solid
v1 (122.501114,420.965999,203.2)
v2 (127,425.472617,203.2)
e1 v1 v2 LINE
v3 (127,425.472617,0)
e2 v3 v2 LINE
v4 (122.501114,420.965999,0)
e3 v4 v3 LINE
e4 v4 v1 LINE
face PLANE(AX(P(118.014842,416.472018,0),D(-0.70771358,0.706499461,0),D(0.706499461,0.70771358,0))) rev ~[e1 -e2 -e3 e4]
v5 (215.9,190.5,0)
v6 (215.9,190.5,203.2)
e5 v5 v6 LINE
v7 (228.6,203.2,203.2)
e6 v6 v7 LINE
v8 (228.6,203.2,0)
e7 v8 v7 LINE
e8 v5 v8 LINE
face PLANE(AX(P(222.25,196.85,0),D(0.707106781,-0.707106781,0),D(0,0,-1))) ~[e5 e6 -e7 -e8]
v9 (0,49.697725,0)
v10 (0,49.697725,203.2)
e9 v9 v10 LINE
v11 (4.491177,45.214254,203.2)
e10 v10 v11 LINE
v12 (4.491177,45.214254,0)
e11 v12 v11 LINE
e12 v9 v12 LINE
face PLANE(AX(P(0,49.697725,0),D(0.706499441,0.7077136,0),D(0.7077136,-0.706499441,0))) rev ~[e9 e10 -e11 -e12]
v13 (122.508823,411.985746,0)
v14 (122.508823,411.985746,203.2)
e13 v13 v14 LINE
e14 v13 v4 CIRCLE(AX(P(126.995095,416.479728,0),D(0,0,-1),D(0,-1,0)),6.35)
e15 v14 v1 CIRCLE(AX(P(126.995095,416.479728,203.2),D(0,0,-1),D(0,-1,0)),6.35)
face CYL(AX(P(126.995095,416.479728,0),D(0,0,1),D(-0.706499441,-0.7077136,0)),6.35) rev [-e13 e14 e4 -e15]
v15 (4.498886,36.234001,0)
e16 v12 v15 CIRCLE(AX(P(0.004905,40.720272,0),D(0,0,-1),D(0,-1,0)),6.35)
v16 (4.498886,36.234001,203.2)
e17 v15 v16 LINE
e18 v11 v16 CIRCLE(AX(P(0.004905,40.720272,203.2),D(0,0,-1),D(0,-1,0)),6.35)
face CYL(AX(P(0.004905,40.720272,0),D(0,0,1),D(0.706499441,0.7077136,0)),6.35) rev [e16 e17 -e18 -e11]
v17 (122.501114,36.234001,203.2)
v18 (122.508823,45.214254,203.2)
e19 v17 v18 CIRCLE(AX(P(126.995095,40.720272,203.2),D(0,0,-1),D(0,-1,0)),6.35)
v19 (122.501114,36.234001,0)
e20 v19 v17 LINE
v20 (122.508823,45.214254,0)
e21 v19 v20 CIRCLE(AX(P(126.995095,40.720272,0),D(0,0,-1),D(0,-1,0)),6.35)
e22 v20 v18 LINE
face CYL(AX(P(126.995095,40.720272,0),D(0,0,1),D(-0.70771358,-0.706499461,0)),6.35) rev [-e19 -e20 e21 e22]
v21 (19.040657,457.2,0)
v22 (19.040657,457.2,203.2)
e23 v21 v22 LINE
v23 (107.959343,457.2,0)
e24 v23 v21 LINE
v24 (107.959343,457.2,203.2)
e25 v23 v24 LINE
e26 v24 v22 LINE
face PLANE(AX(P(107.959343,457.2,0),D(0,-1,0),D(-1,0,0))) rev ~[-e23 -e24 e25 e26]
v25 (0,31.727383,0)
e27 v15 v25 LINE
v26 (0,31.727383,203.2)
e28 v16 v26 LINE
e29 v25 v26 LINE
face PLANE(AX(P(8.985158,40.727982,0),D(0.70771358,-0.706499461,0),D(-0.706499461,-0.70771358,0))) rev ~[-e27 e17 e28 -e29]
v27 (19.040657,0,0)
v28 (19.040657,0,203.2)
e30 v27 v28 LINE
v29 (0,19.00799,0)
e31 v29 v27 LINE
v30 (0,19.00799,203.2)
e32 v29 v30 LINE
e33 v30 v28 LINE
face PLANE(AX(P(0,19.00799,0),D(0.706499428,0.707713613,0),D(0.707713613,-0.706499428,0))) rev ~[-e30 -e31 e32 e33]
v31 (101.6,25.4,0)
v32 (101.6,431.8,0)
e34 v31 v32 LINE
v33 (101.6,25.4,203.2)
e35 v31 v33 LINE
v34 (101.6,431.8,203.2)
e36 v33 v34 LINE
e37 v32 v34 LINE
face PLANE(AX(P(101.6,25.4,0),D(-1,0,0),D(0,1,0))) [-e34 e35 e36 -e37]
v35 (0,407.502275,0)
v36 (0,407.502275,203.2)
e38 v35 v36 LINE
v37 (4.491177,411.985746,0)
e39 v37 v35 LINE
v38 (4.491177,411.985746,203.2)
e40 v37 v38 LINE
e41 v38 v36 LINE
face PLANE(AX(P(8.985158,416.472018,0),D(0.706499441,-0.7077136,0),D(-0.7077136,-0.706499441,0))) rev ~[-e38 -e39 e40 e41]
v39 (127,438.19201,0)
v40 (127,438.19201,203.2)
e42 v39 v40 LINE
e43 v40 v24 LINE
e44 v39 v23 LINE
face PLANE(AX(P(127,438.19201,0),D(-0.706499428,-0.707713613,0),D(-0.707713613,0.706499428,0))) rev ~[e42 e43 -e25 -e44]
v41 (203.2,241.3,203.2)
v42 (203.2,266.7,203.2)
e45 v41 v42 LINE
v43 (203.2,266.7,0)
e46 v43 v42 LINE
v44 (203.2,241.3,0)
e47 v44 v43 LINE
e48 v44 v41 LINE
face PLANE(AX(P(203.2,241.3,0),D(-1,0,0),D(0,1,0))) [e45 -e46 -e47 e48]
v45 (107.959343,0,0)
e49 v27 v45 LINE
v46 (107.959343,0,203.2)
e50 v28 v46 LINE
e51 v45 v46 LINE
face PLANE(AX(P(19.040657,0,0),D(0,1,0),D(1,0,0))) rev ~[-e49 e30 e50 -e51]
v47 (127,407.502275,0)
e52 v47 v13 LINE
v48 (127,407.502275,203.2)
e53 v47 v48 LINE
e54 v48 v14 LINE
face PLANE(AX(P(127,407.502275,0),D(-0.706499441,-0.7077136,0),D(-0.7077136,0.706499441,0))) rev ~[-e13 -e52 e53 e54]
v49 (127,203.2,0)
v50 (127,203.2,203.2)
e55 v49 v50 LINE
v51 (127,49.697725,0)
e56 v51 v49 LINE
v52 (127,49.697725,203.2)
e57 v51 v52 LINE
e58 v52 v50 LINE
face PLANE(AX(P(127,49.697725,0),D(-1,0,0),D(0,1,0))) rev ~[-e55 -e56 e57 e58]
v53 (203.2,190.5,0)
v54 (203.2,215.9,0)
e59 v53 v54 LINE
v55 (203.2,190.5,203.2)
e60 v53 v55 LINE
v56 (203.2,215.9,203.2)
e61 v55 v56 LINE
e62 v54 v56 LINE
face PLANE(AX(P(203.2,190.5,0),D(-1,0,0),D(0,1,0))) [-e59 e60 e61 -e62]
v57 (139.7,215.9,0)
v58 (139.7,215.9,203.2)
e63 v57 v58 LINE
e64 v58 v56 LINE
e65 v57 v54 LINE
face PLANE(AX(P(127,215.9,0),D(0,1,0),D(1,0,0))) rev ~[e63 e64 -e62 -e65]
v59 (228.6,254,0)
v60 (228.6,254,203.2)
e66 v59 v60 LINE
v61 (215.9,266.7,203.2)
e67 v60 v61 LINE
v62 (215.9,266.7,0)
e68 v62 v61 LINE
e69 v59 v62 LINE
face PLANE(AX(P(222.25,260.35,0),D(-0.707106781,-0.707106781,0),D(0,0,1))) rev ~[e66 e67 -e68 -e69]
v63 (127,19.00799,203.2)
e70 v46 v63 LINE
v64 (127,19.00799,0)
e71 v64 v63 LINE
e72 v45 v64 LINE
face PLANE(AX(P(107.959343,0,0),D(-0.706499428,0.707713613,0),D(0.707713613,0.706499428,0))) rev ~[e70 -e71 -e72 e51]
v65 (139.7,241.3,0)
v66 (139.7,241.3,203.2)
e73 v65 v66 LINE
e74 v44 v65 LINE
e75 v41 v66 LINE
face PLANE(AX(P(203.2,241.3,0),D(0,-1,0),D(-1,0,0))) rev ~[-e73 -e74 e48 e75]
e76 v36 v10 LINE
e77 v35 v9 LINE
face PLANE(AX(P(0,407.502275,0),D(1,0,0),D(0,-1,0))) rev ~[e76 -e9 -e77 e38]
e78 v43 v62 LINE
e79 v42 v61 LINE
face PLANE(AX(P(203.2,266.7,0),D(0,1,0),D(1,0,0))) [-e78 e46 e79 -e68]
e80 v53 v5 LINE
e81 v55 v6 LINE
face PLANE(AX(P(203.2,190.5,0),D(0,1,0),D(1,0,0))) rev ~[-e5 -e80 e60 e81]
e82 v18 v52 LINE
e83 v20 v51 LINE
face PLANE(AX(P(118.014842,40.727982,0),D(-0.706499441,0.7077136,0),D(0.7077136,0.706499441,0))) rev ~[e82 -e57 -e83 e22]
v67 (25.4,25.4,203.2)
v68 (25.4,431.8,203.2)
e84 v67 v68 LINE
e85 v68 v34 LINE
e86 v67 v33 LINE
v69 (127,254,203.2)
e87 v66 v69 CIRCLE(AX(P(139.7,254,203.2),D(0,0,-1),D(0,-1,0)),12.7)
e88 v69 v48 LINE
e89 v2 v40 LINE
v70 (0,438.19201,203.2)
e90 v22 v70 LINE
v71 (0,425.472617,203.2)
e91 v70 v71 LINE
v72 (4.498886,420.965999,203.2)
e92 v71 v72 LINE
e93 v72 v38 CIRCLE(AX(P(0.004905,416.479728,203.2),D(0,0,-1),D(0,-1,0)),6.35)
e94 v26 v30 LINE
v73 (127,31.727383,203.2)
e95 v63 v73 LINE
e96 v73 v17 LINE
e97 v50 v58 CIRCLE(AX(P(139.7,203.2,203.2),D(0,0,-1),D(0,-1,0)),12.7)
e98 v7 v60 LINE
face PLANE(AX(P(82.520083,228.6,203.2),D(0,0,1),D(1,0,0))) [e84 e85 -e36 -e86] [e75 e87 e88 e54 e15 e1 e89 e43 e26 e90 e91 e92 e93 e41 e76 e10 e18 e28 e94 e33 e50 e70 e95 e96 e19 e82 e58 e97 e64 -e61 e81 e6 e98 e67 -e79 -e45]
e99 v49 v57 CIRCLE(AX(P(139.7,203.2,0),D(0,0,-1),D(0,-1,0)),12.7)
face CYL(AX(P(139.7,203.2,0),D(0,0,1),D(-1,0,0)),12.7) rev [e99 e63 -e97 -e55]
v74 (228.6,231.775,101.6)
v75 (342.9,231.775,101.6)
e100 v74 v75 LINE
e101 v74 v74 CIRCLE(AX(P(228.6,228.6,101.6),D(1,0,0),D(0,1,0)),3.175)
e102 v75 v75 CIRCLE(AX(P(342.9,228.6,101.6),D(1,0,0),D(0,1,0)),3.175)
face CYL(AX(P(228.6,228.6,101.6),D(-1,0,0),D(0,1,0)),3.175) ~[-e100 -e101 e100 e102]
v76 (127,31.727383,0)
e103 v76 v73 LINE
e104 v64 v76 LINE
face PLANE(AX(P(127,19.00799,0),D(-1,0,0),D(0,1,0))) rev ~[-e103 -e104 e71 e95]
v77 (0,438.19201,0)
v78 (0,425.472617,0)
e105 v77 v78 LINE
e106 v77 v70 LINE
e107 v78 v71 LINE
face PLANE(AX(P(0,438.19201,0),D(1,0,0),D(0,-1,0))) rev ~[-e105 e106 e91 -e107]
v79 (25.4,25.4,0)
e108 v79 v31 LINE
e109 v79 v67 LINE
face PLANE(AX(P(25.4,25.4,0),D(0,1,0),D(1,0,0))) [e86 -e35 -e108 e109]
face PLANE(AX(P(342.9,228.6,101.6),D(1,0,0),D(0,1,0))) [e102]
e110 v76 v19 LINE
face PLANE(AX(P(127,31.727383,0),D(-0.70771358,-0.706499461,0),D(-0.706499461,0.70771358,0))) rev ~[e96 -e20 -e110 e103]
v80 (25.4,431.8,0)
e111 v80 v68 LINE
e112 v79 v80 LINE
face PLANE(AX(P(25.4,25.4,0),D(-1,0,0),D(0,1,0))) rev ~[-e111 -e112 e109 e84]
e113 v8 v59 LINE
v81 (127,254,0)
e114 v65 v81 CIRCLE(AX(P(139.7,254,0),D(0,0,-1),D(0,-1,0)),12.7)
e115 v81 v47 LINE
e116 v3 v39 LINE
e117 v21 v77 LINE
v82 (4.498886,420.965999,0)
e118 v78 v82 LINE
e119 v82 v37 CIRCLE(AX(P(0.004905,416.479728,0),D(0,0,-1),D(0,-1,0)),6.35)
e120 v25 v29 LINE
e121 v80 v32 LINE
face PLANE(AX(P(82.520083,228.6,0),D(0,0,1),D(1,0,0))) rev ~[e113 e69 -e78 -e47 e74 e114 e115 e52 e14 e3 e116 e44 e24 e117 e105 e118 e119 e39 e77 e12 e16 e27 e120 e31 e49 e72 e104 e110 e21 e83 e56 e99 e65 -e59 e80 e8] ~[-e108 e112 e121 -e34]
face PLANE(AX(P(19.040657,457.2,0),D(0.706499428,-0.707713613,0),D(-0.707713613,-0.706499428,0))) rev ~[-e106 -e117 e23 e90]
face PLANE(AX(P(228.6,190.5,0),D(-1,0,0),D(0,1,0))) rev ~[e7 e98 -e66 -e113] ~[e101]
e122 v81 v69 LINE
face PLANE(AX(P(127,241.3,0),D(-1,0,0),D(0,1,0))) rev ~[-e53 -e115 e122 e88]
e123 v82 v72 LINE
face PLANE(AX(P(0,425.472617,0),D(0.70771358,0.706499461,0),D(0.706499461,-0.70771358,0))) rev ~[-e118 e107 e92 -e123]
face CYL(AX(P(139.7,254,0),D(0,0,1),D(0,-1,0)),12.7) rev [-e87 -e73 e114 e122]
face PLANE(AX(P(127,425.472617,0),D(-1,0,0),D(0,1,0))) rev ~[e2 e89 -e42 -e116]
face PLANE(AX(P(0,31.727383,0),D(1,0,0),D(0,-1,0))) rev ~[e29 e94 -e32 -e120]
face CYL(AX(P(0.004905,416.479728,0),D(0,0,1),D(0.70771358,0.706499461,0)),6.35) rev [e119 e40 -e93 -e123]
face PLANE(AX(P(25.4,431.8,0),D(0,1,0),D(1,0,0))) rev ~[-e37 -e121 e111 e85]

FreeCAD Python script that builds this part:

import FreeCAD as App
import Part
import Sketcher
Q = App.Units.Quantity


def edges_at(feature, points):
    """Names of the edges that pass closest to the given points."""
    edges = feature.Shape.Edges
    near = lambda p: min(range(len(edges)), key=lambda i: edges[i].distToShape(Part.Vertex(*p))[0])
    return sorted({f"Edge{near(p) + 1}" for p in points})

doc = App.newDocument("Part")
body = doc.addObject("PartDesign::Body", "Body")

# Sketch on XY plane
sketch1 = body.newObject("Sketcher::SketchObject", "Sketch")
sketch1.AttachmentSupport = (doc.getObject("XY_Plane"), [""])
sketch1.MapMode = "FlatFace"
sketch1.addGeometry([
    Part.LineSegment(App.Vector(0, 19.00799, 0), App.Vector(19.040657, 0, 0)),  # 0
    Part.LineSegment(App.Vector(19.040657, 0, 0), App.Vector(107.959343, 0, 0)),  # 1
    Part.LineSegment(App.Vector(107.959343, 0, 0), App.Vector(127, 19.00799, 0)),  # 2
    Part.LineSegment(App.Vector(127, 19.00799, 0), App.Vector(127, 31.727383, 0)),  # 3
    Part.LineSegment(App.Vector(127, 31.727383, 0), App.Vector(118.014842, 40.727982, 0)),  # 4
    Part.LineSegment(App.Vector(118.014842, 40.727982, 0), App.Vector(127, 49.697725, 0)),  # 5
    Part.LineSegment(App.Vector(127, 49.697725, 0), App.Vector(127, 215.9, 0)),  # 6
    Part.LineSegment(App.Vector(127, 215.9, 0), App.Vector(203.2, 215.9, 0)),  # 7
    Part.LineSegment(App.Vector(203.2, 215.9, 0), App.Vector(203.2, 190.5, 0)),  # 8
    Part.LineSegment(App.Vector(203.2, 190.5, 0), App.Vector(228.6, 190.5, 0)),  # 9
    Part.LineSegment(App.Vector(228.6, 190.5, 0), App.Vector(228.6, 266.7, 0)),  # 10
    Part.LineSegment(App.Vector(228.6, 266.7, 0), App.Vector(203.2, 266.7, 0)),  # 11
    Part.LineSegment(App.Vector(203.2, 266.7, 0), App.Vector(203.2, 241.3, 0)),  # 12
    Part.LineSegment(App.Vector(203.2, 241.3, 0), App.Vector(127, 241.3, 0)),  # 13
    Part.LineSegment(App.Vector(127, 241.3, 0), App.Vector(127, 407.502275, 0)),  # 14
    Part.LineSegment(App.Vector(127, 407.502275, 0), App.Vector(118.014842, 416.472018, 0)),  # 15
    Part.LineSegment(App.Vector(118.014842, 416.472018, 0), App.Vector(127, 425.472617, 0)),  # 16
    Part.LineSegment(App.Vector(127, 425.472617, 0), App.Vector(127, 438.19201, 0)),  # 17
    Part.LineSegment(App.Vector(127, 438.19201, 0), App.Vector(107.959343, 457.2, 0)),  # 18
    Part.LineSegment(App.Vector(107.959343, 457.2, 0), App.Vector(19.040657, 457.2, 0)),  # 19
    Part.LineSegment(App.Vector(19.040657, 457.2, 0), App.Vector(0, 438.19201, 0)),  # 20
    Part.LineSegment(App.Vector(0, 438.19201, 0), App.Vector(0, 425.472617, 0)),  # 21
    Part.LineSegment(App.Vector(0, 425.472617, 0), App.Vector(8.985158, 416.472018, 0)),  # 22
    Part.LineSegment(App.Vector(8.985158, 416.472018, 0), App.Vector(0, 407.502275, 0)),  # 23
    Part.LineSegment(App.Vector(0, 407.502275, 0), App.Vector(0, 49.697725, 0)),  # 24
    Part.LineSegment(App.Vector(0, 49.697725, 0), App.Vector(8.985158, 40.727982, 0)),  # 25
    Part.LineSegment(App.Vector(8.985158, 40.727982, 0), App.Vector(0, 31.727383, 0)),  # 26
    Part.LineSegment(App.Vector(0, 31.727383, 0), App.Vector(0, 19.00799, 0)),  # 27
    Part.LineSegment(App.Vector(101.6, 25.4, 0), App.Vector(25.4, 25.4, 0)),  # 28
    Part.LineSegment(App.Vector(25.4, 25.4, 0), App.Vector(25.4, 431.8, 0)),  # 29
    Part.LineSegment(App.Vector(25.4, 431.8, 0), App.Vector(101.6, 431.8, 0)),  # 30
    Part.LineSegment(App.Vector(101.6, 431.8, 0), App.Vector(101.6, 25.4, 0)),  # 31
], False)
sketch1.addConstraint([
    Sketcher.Constraint("Coincident", 0, 2, 1, 1),
    Sketcher.Constraint("Coincident", 1, 2, 2, 1),
    Sketcher.Constraint("Coincident", 2, 2, 3, 1),
    Sketcher.Constraint("Coincident", 3, 2, 4, 1),
    Sketcher.Constraint("Coincident", 4, 2, 5, 1),
    Sketcher.Constraint("Coincident", 5, 2, 6, 1),
    Sketcher.Constraint("Coincident", 6, 2, 7, 1),
    Sketcher.Constraint("Coincident", 7, 2, 8, 1),
    Sketcher.Constraint("Coincident", 8, 2, 9, 1),
    Sketcher.Constraint("Coincident", 9, 2, 10, 1),
    Sketcher.Constraint("Coincident", 10, 2, 11, 1),
    Sketcher.Constraint("Coincident", 11, 2, 12, 1),
    Sketcher.Constraint("Coincident", 12, 2, 13, 1),
    Sketcher.Constraint("Coincident", 13, 2, 14, 1),
    Sketcher.Constraint("Coincident", 14, 2, 15, 1),
    Sketcher.Constraint("Coincident", 15, 2, 16, 1),
    Sketcher.Constraint("Coincident", 16, 2, 17, 1),
    Sketcher.Constraint("Coincident", 17, 2, 18, 1),
    Sketcher.Constraint("Coincident", 18, 2, 19, 1),
    Sketcher.Constraint("Coincident", 19, 2, 20, 1),
    Sketcher.Constraint("Coincident", 20, 2, 21, 1),
    Sketcher.Constraint("Coincident", 21, 2, 22, 1),
    Sketcher.Constraint("Coincident", 22, 2, 23, 1),
    Sketcher.Constraint("Coincident", 23, 2, 24, 1),
    Sketcher.Constraint("Coincident", 24, 2, 25, 1),
    Sketcher.Constraint("Coincident", 25, 2, 26, 1),
    Sketcher.Constraint("Coincident", 26, 2, 27, 1),
    Sketcher.Constraint("Coincident", 27, 2, 0, 1),
    Sketcher.Constraint("Coincident", 28, 2, 29, 1),
    Sketcher.Constraint("Coincident", 29, 2, 30, 1),
    Sketcher.Constraint("Coincident", 30, 2, 31, 1),
    Sketcher.Constraint("Coincident", 31, 2, 28, 1),
    Sketcher.Constraint("Horizontal", 1),
    Sketcher.Constraint("Vertical", 3),
    Sketcher.Constraint("Vertical", 6),
    Sketcher.Constraint("Horizontal", 7),
    Sketcher.Constraint("Vertical", 8),
    Sketcher.Constraint("Horizontal", 9),
    Sketcher.Constraint("Vertical", 10),
    Sketcher.Constraint("Horizontal", 11),
    Sketcher.Constraint("Vertical", 12),
    Sketcher.Constraint("Horizontal", 13),
    Sketcher.Constraint("Vertical", 14),
    Sketcher.Constraint("Vertical", 17),
    Sketcher.Constraint("Horizontal", 19),
    Sketcher.Constraint("Vertical", 21),
    Sketcher.Constraint("Vertical", 24),
    Sketcher.Constraint("Vertical", 27),
    Sketcher.Constraint("Horizontal", 28),
    Sketcher.Constraint("Vertical", 29),
    Sketcher.Constraint("Horizontal", 30),
    Sketcher.Constraint("Vertical", 31),
    Sketcher.Constraint("PointOnObject", 0, 2, -1),
    Sketcher.Constraint("PointOnObject", 20, 2, -2),
    Sketcher.Constraint("PointOnObject", 23, 2, -2),
    Sketcher.Constraint("PointOnObject", 26, 2, -2),
    Sketcher.Constraint("Perpendicular", 2, 4),
    Sketcher.Constraint("Perpendicular", 4, 5),
    Sketcher.Constraint("Parallel", 0, 15),
    Sketcher.Constraint("Perpendicular", 15, 16),
    Sketcher.Constraint("Perpendicular", 16, 18),
    Sketcher.Constraint("Parallel", 5, 20),
    Sketcher.Constraint("Perpendicular", 20, 22),
    Sketcher.Constraint("Perpendicular", 22, 23),
    Sketcher.Constraint("Parallel", 18, 25),
    Sketcher.Constraint("Perpendicular", 25, 26),
    Sketcher.Constraint("Horizontal", 17, 2, 20, 2),
    Sketcher.Constraint("Horizontal", 16, 2, 21, 2),
    Sketcher.Constraint("Horizontal", 15, 2, 22, 2),
    Sketcher.Constraint("Horizontal", 14, 2, 23, 2),
    Sketcher.Constraint("Horizontal", 5, 2, 24, 2),
    Sketcher.Constraint("Horizontal", 4, 2, 25, 2),
    Sketcher.Constraint("Horizontal", 3, 2, 26, 2),
    Sketcher.Constraint("Horizontal", 2, 2, 27, 2),
    Sketcher.Constraint("Vertical", 3, 2, 5, 2),
    Sketcher.Constraint("Vertical", 8, 2, 11, 2),
    Sketcher.Constraint("Vertical", 6, 2, 13, 2),
    Sketcher.Constraint("Vertical", 4, 2, 15, 2),
    Sketcher.Constraint("Vertical", 1, 2, 18, 2),
    Sketcher.Constraint("Equal", 13, 28),
    Sketcher.Constraint("Equal", 11, 8),
    Sketcher.Constraint("Equal", 30, 10),
    Sketcher.Constraint("Equal", 8, 12),
    Sketcher.Constraint("Equal", 6, 14),
    Sketcher.Constraint("Equal", 3, 17),
    Sketcher.Constraint("DistanceX", 7, 1, 7, 2, Q("3 in")),
    Sketcher.Constraint("DistanceX", 9, 1, 9, 2, Q("1 in")),
    Sketcher.Constraint("DistanceY", 29, 1, 29, 2, Q("16 in")),
    Sketcher.Constraint("DistanceX", -1, 1, 2, 2, Q("5 in")),
    Sketcher.Constraint("DistanceY", -1, 1, 18, 2, Q("18 in")),
    Sketcher.Constraint("DistanceX", -1, 1, 28, 2, Q("1 in")),
    Sketcher.Constraint("DistanceY", -1, 1, 28, 2, Q("1 in")),
    Sketcher.Constraint("DistanceY", 24, 2, 24, 1, 357.80455),
    Sketcher.Constraint("DistanceY", 3, 2, 4, 2, 9.000599),
    Sketcher.Constraint("DistanceX", 1, 2, 4, 2, 10.055499),
    Sketcher.Constraint("DistanceX", 1, 1, 1, 2, 88.918686),
])
pad1 = body.newObject("PartDesign::Pad", "Pad")
pad1.Profile = sketch1
pad1.Length = Q("8 in")
doc.recompute()

fillet = body.newObject("PartDesign::Fillet", "Fillet")
fillet.Base = (pad1, edges_at(pad1, [
    (118.015, 416.472, 101.6),
    (8.985, 416.472, 101.6),
    (8.985, 40.728, 101.6),
    (118.015, 40.728, 101.6),
]))
fillet.Radius = Q("0.25 in")
doc.recompute()

fillet2 = body.newObject("PartDesign::Fillet", "Fillet001")
fillet2.Base = (fillet, edges_at(fillet, [(127, 215.9, 101.6), (127, 241.3, 101.6)]))
fillet2.Radius = Q("0.5 in")
doc.recompute()

chamfer = body.newObject("PartDesign::Chamfer", "Chamfer")
chamfer.Base = (fillet2, edges_at(fillet2, [(228.6, 190.5, 101.6), (228.6, 266.7, 101.6)]))
chamfer.Size = Q("0.5 in")

# Sketch on YZ plane
sketch2 = body.newObject("Sketcher::SketchObject", "Sketch001")
sketch2.AttachmentSupport = (doc.getObject("YZ_Plane"), [""])
sketch2.MapMode = "FlatFace"
sketch2.AttachmentOffset = App.Placement(App.Vector(0, 0, 9 * 25.4), App.Rotation())
sketch2.addGeometry(Part.Circle(App.Vector(228.6, 101.6, 0), App.Vector(0, 0, 1), 3.175), False)
sketch2.addConstraint([
    Sketcher.Constraint("Diameter", 0, Q("0.25 in")),
    Sketcher.Constraint("DistanceX", -1, 1, 0, 3, Q("9 in")),
    Sketcher.Constraint("DistanceY", -1, 1, 0, 3, Q("4 in")),
])
pad2 = body.newObject("PartDesign::Pad", "Pad001")
pad2.Profile = sketch2
pad2.Length = Q("4.5 in")

doc.recompute()
